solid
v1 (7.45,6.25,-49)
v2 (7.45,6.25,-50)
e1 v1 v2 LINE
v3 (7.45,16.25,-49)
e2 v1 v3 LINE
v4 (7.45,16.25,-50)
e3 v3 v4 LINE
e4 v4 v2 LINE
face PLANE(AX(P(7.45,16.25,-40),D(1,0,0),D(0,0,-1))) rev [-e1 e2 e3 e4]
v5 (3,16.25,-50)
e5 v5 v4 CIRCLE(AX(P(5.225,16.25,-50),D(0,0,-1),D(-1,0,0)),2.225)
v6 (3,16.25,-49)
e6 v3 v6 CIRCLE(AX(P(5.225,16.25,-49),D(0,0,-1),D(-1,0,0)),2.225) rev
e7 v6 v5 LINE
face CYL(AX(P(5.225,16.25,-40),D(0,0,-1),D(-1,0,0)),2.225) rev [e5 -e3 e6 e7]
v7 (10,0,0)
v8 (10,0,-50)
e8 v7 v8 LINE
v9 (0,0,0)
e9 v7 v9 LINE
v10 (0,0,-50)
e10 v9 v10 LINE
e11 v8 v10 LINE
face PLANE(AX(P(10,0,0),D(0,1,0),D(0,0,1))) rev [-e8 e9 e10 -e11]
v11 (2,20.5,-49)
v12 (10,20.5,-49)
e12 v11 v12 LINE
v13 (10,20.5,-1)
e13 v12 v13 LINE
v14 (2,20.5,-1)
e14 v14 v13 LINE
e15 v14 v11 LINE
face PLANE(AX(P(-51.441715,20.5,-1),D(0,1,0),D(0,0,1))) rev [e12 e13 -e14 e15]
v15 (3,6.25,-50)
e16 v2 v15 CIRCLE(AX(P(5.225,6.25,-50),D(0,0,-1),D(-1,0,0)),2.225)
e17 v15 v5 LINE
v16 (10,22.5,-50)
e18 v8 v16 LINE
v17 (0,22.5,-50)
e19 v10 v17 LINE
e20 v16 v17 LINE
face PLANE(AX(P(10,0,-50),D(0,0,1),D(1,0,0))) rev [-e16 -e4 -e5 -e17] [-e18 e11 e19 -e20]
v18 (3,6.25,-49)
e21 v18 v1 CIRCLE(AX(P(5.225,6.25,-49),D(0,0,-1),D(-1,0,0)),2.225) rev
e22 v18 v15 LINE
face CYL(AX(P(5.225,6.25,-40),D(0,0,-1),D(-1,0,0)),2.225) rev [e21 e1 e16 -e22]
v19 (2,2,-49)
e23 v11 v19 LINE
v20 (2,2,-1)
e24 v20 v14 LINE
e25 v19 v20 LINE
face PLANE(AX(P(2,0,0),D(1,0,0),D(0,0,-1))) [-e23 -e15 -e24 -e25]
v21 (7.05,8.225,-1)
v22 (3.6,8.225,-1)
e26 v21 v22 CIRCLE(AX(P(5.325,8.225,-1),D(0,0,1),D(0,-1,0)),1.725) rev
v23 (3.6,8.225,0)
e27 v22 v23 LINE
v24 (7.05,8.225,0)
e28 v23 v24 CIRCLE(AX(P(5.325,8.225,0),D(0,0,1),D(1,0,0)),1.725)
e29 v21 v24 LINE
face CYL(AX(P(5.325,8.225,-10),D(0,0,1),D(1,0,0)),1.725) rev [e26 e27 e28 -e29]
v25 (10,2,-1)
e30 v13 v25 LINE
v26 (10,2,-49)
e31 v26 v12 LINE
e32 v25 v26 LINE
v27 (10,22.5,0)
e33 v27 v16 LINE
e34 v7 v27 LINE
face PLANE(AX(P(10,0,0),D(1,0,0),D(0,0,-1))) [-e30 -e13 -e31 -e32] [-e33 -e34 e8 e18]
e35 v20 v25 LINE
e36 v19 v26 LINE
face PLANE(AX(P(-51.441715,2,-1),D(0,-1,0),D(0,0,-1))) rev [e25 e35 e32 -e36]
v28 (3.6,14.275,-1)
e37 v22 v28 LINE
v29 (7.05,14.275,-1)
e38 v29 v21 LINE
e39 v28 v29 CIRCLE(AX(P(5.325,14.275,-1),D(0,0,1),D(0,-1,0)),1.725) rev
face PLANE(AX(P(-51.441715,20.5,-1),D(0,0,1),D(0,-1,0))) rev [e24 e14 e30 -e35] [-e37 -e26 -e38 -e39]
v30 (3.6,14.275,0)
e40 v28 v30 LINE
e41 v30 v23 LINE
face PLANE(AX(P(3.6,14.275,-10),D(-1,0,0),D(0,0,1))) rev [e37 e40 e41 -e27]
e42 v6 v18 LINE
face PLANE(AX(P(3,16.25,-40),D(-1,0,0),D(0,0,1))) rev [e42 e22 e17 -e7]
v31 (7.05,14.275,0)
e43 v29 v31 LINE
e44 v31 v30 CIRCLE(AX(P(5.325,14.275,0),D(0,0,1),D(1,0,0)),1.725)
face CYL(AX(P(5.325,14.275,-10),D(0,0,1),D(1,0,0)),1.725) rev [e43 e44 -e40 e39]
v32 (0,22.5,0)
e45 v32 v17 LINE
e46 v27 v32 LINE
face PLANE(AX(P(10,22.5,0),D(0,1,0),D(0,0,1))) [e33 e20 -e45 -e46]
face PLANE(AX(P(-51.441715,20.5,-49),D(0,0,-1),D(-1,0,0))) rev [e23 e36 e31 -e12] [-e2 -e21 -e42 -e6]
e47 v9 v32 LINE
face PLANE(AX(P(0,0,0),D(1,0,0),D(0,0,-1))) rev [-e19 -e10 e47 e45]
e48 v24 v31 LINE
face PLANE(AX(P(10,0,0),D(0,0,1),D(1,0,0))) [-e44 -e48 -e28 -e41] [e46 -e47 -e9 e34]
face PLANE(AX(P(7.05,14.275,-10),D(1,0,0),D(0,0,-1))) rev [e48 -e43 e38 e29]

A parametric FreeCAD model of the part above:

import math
import FreeCAD as App
import Part
import Sketcher
from FreeCAD import Vector
Q = App.Units.Quantity

doc = App.newDocument("Part")
params = doc.addObject("Spreadsheet::Sheet", "Params")
for row, (alias, value) in enumerate([
    ("sketch1_height", "50 mm"),
    ("sketch1_width", "22.5 mm"),
    ("pad1_length", "10 mm"),
    ("sketch2_height", "6.05 mm"),
    ("pocket1_length", "10 mm"),
    ("sketch3_height", "10 mm"),
    ("pocket2_length", "10 mm"),
    ("sketch4_height", "48 mm"),
    ("sketch4_width", "18.5 mm"),
    ("pocket3_length", "8 mm"),
], start=1):
    params.set(f"A{row}", alias)
    params.set(f"B{row}", "=" + value)
    params.setAlias(f"B{row}", alias)

body = doc.addObject("PartDesign::Body", "Body")

sketch1 = body.newObject("Sketcher::SketchObject", "Sketch")
sketch1.AttachmentSupport = (doc.getObject("YZ_Plane"), [""])
sketch1.MapMode = "FlatFace"
sketch1.addGeometry([
    Part.LineSegment(Vector(22.5, 0, 0), Vector(0, 0, 0)),
    Part.LineSegment(Vector(0, 0, 0), Vector(0, -50, 0)),
    Part.LineSegment(Vector(0, -50, 0), Vector(22.5, -50, 0)),
    Part.LineSegment(Vector(22.5, -50, 0), Vector(22.5, 0, 0)),
], False)
sketch1.addConstraint([
    Sketcher.Constraint("Coincident", 0, 2, 1, 1),
    Sketcher.Constraint("Coincident", 1, 2, 2, 1),
    Sketcher.Constraint("Coincident", 2, 2, 3, 1),
    Sketcher.Constraint("Coincident", 3, 2, 0, 1),
    Sketcher.Constraint("Horizontal", 0),
    Sketcher.Constraint("Vertical", 1),
    Sketcher.Constraint("Horizontal", 2),
    Sketcher.Constraint("Vertical", 3),
    Sketcher.Constraint("Coincident", 0, 2, -1, 1),
    Sketcher.Constraint("DistanceY", 1, 2, 1, 1, Q("50 mm")),
    Sketcher.Constraint("DistanceX", 0, 2, 0, 1, Q("22.5 mm")),
])
sketch1.setExpression("Constraints[9]", "Params.sketch1_height")
sketch1.setExpression("Constraints[10]", "Params.sketch1_width")
pad1 = body.newObject("PartDesign::Pad", "Pad")
pad1.Profile = sketch1
pad1.setExpression("Length", "Params.pad1_length")

sketch2 = body.newObject("Sketcher::SketchObject", "Sketch001")
sketch2.AttachmentSupport = (doc.getObject("XY_Plane"), [""])
sketch2.MapMode = "FlatFace"
sketch2.addGeometry([
    Part.LineSegment(Vector(7.05, 8.225, 0), Vector(7.05, 14.275, 0)),
    Part.ArcOfCircle(Part.Circle(Vector(5.325, 14.275, 0), Vector(0, 0, 1), 1.725), math.radians(0), math.radians(180)),
    Part.LineSegment(Vector(3.6, 14.275, 0), Vector(3.6, 8.225, 0)),
    Part.ArcOfCircle(Part.Circle(Vector(5.325, 8.225, 0), Vector(0, 0, 1), 1.725), math.radians(180), math.radians(360)),
], False)
sketch2.addConstraint([
    Sketcher.Constraint("Tangent", 0, 2, 1, 1),
    Sketcher.Constraint("Tangent", 1, 2, 2, 1),
    Sketcher.Constraint("Tangent", 2, 2, 3, 1),
    Sketcher.Constraint("Tangent", 3, 2, 0, 1),
    Sketcher.Constraint("Vertical", 0),
    Sketcher.Constraint("Vertical", 2),
    Sketcher.Constraint("Radius", 1, Q("1.725 mm")),
    Sketcher.Constraint("DistanceY", 0, 1, 0, 2, Q("6.05 mm")),
    Sketcher.Constraint("DistanceX", -1, 1, 1, 2, Q("3.6 mm")),
    Sketcher.Constraint("DistanceY", -1, 1, 1, 3, Q("14.275 mm")),
])
sketch2.setExpression("Constraints[7]", "Params.sketch2_height")
pocket1 = body.newObject("PartDesign::Pocket", "Pocket")
pocket1.Profile = sketch2
pocket1.setExpression("Length", "Params.pocket1_length")

sketch3 = body.newObject("Sketcher::SketchObject", "Sketch002")
sketch3.AttachmentSupport = (doc.getObject("XY_Plane"), [""])
sketch3.MapMode = "FlatFace"
sketch3.AttachmentOffset = App.Placement(Vector(0, 0, -50), App.Rotation())
sketch3.addGeometry([
    Part.LineSegment(Vector(3, 6.25, 0), Vector(3, 16.25, 0)),
    Part.ArcOfCircle(Part.Circle(Vector(5.225, 16.25, 0), Vector(0, 0, 1), 2.225), math.radians(0), math.radians(180)),
    Part.LineSegment(Vector(7.45, 16.25, 0), Vector(7.45, 6.25, 0)),
    Part.ArcOfCircle(Part.Circle(Vector(5.225, 6.25, 0), Vector(0, 0, 1), 2.225), math.radians(180), math.radians(360)),
], False)
sketch3.addConstraint([
    Sketcher.Constraint("Tangent", 0, 2, 1, 2),
    Sketcher.Constraint("Tangent", 1, 1, 2, 1),
    Sketcher.Constraint("Tangent", 2, 2, 3, 2),
    Sketcher.Constraint("Tangent", 3, 1, 0, 1),
    Sketcher.Constraint("Vertical", 0),
    Sketcher.Constraint("Vertical", 2),
    Sketcher.Constraint("DistanceY", 0, 1, 0, 2, Q("10 mm")),
    Sketcher.Constraint("DistanceX", -1, 1, 0, 2, Q("3 mm")),
    Sketcher.Constraint("Radius", 1, Q("2.225 mm")),
    Sketcher.Constraint("DistanceY", -1, 1, 1, 3, Q("16.25 mm")),
])
sketch3.setExpression("Constraints[6]", "Params.sketch3_height")
pocket2 = body.newObject("PartDesign::Pocket", "Pocket001")
pocket2.Profile = sketch3
pocket2.setExpression("Length", "Params.pocket2_length")
pocket2.Reversed = True

sketch4 = body.newObject("Sketcher::SketchObject", "Sketch003")
sketch4.AttachmentSupport = (doc.getObject("YZ_Plane"), [""])
sketch4.MapMode = "FlatFace"
sketch4.AttachmentOffset = App.Placement(Vector(0, 0, 10), App.Rotation())
sketch4.addGeometry([
    Part.LineSegment(Vector(20.5, -1, 0), Vector(2, -1, 0)),
    Part.LineSegment(Vector(2, -1, 0), Vector(2, -49, 0)),
    Part.LineSegment(Vector(2, -49, 0), Vector(20.5, -49, 0)),
    Part.LineSegment(Vector(20.5, -49, 0), Vector(20.5, -1, 0)),
], False)
sketch4.addConstraint([
    Sketcher.Constraint("Coincident", 0, 2, 1, 1),
    Sketcher.Constraint("Coincident", 1, 2, 2, 1),
    Sketcher.Constraint("Coincident", 2, 2, 3, 1),
    Sketcher.Constraint("Coincident", 3, 2, 0, 1),
    Sketcher.Constraint("Horizontal", 0),
    Sketcher.Constraint("Vertical", 1),
    Sketcher.Constraint("Horizontal", 2),
    Sketcher.Constraint("Vertical", 3),
    Sketcher.Constraint("DistanceY", 1, 2, 1, 1, Q("48 mm")),
    Sketcher.Constraint("DistanceX", 0, 2, 0, 1, Q("18.5 mm")),
    Sketcher.Constraint("DistanceX", -1, 1, 0, 2, Q("2 mm")),
    Sketcher.Constraint("DistanceY", 0, 2, -1, 1, Q("1 mm")),
])
sketch4.setExpression("Constraints[8]", "Params.sketch4_height")
sketch4.setExpression("Constraints[9]", "Params.sketch4_width")
pocket3 = body.newObject("PartDesign::Pocket", "Pocket002")
pocket3.Profile = sketch4
pocket3.setExpression("Length", "Params.pocket3_length")

doc.recompute()
